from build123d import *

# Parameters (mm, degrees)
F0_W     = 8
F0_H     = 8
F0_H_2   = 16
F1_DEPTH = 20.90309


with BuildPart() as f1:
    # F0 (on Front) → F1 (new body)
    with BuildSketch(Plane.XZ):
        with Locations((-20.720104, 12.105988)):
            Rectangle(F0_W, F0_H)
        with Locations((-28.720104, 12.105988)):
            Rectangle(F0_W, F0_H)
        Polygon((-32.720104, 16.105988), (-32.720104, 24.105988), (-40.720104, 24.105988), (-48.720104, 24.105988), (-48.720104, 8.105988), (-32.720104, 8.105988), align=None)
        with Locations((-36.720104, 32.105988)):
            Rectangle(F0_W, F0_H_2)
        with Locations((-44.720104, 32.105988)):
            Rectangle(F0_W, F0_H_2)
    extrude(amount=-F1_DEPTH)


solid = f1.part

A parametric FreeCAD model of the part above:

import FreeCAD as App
import Part
import Sketcher
from FreeCAD import Vector
Q = App.Units.Quantity

doc = App.newDocument("Part")
params = doc.addObject("Spreadsheet::Sheet", "Params")
for row, (alias, value) in enumerate([
    ("sketch1_width", "16 mm"),
    ("sketch1_height", "8 mm"),
    ("pad1_length", "20.90309 mm"),
], start=1):
    params.set(f"A{row}", alias)
    params.set(f"B{row}", "=" + value)
    params.setAlias(f"B{row}", alias)

body = doc.addObject("PartDesign::Body", "Body")

# Sketch on XZ plane
sketch1 = body.newObject("Sketcher::SketchObject", "Sketch")
sketch1.AttachmentSupport = (doc.getObject("XZ_Plane"), [""])
sketch1.MapMode = "FlatFace"
sketch1.addGeometry(Part.LineSegment(Vector(-16.720104, 8.105988, 0), Vector(-16.720104, 16.105988, 0)), False)
sketch1.addGeometry(Part.LineSegment(Vector(-16.720104, 16.105988, 0), Vector(-32.720104, 16.105988, 0)), False)
sketch1.addGeometry(Part.LineSegment(Vector(-32.720104, 16.105988, 0), Vector(-32.720104, 40.105988, 0)), False)
sketch1.addGeometry(Part.LineSegment(Vector(-32.720104, 40.105988, 0), Vector(-48.720104, 40.105988, 0)), False)
sketch1.addGeometry(Part.LineSegment(Vector(-48.720104, 40.105988, 0), Vector(-48.720104, 8.105988, 0)), False)
sketch1.addGeometry(Part.LineSegment(Vector(-48.720104, 8.105988, 0), Vector(-16.720104, 8.105988, 0)), False)
sketch1.addConstraint(Sketcher.Constraint("Coincident", 0, 2, 1, 1))
sketch1.addConstraint(Sketcher.Constraint("Coincident", 1, 2, 2, 1))
sketch1.addConstraint(Sketcher.Constraint("Coincident", 2, 2, 3, 1))
sketch1.addConstraint(Sketcher.Constraint("Coincident", 3, 2, 4, 1))
sketch1.addConstraint(Sketcher.Constraint("Coincident", 4, 2, 5, 1))
sketch1.addConstraint(Sketcher.Constraint("Coincident", 5, 2, 0, 1))
sketch1.addConstraint(Sketcher.Constraint("Vertical", 0))
sketch1.addConstraint(Sketcher.Constraint("Horizontal", 1))
sketch1.addConstraint(Sketcher.Constraint("Vertical", 2))
sketch1.addConstraint(Sketcher.Constraint("Horizontal", 3))
sketch1.addConstraint(Sketcher.Constraint("Vertical", 4))
sketch1.addConstraint(Sketcher.Constraint("Horizontal", 5))
sketch1.addConstraint(Sketcher.Constraint("Equal", 1, 3))
sketch1.addConstraint(Sketcher.Constraint("Equal", 5, 4))
sketch1.addConstraint(Sketcher.Constraint("DistanceX", 1, 2, 1, 1, Q("16 mm")))
sketch1.addConstraint(Sketcher.Constraint("DistanceY", 0, 1, 0, 2, Q("8 mm")))
sketch1.addConstraint(Sketcher.Constraint("DistanceY", -1, 1, 0, 2, Q("16.105988 mm")))
sketch1.addConstraint(Sketcher.Constraint("DistanceX", 0, 2, -1, 1, Q("16.720104 mm")))
sketch1.setExpression("Constraints[14]", "Params.sketch1_width")
sketch1.setExpression("Constraints[15]", "Params.sketch1_height")
pad1 = body.newObject("PartDesign::Pad", "Pad")
pad1.Profile = sketch1
pad1.setExpression("Length", "Params.pad1_length")
pad1.Reversed = True

doc.recompute()
